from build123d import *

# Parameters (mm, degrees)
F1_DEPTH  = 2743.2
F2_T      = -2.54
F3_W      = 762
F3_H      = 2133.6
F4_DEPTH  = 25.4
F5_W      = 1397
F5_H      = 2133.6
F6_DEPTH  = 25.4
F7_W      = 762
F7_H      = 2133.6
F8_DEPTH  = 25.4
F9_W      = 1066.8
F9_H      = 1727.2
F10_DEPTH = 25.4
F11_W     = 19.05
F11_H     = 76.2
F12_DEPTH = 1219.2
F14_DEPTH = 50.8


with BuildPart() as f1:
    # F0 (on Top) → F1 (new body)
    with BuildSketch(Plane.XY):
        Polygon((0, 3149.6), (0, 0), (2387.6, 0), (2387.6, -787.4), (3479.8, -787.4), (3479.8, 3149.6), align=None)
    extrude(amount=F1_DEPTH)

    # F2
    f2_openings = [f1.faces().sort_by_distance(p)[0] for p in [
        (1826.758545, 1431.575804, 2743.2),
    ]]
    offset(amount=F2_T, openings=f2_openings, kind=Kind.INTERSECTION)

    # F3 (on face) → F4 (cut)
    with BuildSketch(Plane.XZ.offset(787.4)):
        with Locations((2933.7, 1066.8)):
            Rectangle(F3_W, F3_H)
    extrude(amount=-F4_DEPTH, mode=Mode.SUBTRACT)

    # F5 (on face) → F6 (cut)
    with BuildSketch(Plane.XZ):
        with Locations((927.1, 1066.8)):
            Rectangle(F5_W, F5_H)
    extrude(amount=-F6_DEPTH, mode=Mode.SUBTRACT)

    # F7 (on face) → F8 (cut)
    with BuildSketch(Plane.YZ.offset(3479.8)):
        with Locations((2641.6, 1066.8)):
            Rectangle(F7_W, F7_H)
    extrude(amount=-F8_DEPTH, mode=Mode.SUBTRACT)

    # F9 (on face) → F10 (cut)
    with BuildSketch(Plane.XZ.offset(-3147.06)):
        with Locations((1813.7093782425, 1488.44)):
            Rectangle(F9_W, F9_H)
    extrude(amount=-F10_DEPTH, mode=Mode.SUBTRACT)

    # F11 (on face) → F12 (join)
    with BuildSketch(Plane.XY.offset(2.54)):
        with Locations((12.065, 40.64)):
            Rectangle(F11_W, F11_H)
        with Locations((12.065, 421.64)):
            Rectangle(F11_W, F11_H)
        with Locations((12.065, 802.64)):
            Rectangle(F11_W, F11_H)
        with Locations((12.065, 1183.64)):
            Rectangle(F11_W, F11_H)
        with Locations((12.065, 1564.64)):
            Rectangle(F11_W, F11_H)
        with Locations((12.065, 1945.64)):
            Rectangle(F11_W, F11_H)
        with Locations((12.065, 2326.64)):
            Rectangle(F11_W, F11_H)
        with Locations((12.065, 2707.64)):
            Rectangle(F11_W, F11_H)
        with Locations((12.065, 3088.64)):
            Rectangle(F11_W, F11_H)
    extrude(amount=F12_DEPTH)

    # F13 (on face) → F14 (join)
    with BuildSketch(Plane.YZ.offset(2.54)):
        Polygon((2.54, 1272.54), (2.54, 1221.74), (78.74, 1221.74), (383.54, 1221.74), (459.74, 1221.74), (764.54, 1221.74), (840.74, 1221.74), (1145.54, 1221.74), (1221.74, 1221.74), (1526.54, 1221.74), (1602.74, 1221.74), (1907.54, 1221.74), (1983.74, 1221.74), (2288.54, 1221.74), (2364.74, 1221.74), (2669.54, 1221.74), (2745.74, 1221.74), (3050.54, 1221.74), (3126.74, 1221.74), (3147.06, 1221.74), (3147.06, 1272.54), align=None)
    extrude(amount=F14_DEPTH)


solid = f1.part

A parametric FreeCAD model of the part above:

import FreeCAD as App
import Part
import Sketcher

V = App.Vector
Q = App.Units.Quantity


def faces_at(feature, points):
    """Names of the faces that lie closest to the given points."""
    faces = feature.Shape.Faces
    near = lambda p: min(range(len(faces)), key=lambda i: faces[i].distToShape(Part.Vertex(*p))[0])
    return sorted({f"Face{near(p) + 1}" for p in points})

doc = App.newDocument("Part")
body = doc.addObject("PartDesign::Body", "Body")

# Sketch on XY plane
sketch1 = body.newObject("Sketcher::SketchObject", "Sketch")
sketch1.AttachmentSupport = (doc.getObject("XY_Plane"), [""])
sketch1.MapMode = "FlatFace"
sketch1.addGeometry([
    Part.LineSegment(V(0, 3149.6, 0), V(0, 0, 0)),  # 0
    Part.LineSegment(V(0, 0, 0), V(2387.6, 0, 0)),  # 1
    Part.LineSegment(V(2387.6, 0, 0), V(2387.6, -787.4, 0)),  # 2
    Part.LineSegment(V(2387.6, -787.4, 0), V(3479.8, -787.4, 0)),  # 3
    Part.LineSegment(V(3479.8, -787.4, 0), V(3479.8, 3149.6, 0)),  # 4
    Part.LineSegment(V(3479.8, 3149.6, 0), V(0, 3149.6, 0)),  # 5
], False)
sketch1.addConstraint([
    Sketcher.Constraint("Coincident", 0, 2, 1, 1),
    Sketcher.Constraint("Coincident", 1, 2, 2, 1),
    Sketcher.Constraint("Coincident", 2, 2, 3, 1),
    Sketcher.Constraint("Coincident", 3, 2, 4, 1),
    Sketcher.Constraint("Coincident", 4, 2, 5, 1),
    Sketcher.Constraint("Coincident", 5, 2, 0, 1),
    Sketcher.Constraint("Vertical", 0),
    Sketcher.Constraint("Horizontal", 1),
    Sketcher.Constraint("Vertical", 2),
    Sketcher.Constraint("Horizontal", 3),
    Sketcher.Constraint("Vertical", 4),
    Sketcher.Constraint("Horizontal", 5),
    Sketcher.Constraint("Coincident", 0, 2, -1, 1),
    Sketcher.Constraint("DistanceX", 1, 1, 1, 2, Q("94 in")),
    Sketcher.Constraint("DistanceX", 3, 1, 3, 2, Q("43 in")),
    Sketcher.Constraint("DistanceY", 0, 2, 0, 1, Q("124 in")),
    Sketcher.Constraint("DistanceY", 2, 2, 2, 1, Q("31 in")),
])
pad1 = body.newObject("PartDesign::Pad", "Pad")
pad1.Profile = sketch1
pad1.Length = Q("108 in")
doc.recompute()

thickness = body.newObject("PartDesign::Thickness", "Thickness")
thickness.Base = (pad1, faces_at(pad1, [(1739.9, 1181.1, 2743.2)]))
thickness.Value = Q("0.1 in")
thickness.Reversed = True
thickness.Join = "Intersection"

# Sketch on XZ plane
sketch2 = body.newObject("Sketcher::SketchObject", "Sketch001")
sketch2.AttachmentSupport = (doc.getObject("XZ_Plane"), [""])
sketch2.MapMode = "FlatFace"
sketch2.AttachmentOffset = App.Placement(V(0, 0, 31 * 25.4), App.Rotation())
sketch2.addGeometry([
    Part.LineSegment(V(2552.7, 2133.6, 0), V(2552.7, 0, 0)),
    Part.LineSegment(V(2552.7, 0, 0), V(3314.7, 0, 0)),
    Part.LineSegment(V(3314.7, 0, 0), V(3314.7, 2133.6, 0)),
    Part.LineSegment(V(3314.7, 2133.6, 0), V(2552.7, 2133.6, 0)),
], False)
sketch2.addConstraint([
    Sketcher.Constraint("Coincident", 0, 2, 1, 1),
    Sketcher.Constraint("Coincident", 1, 2, 2, 1),
    Sketcher.Constraint("Coincident", 2, 2, 3, 1),
    Sketcher.Constraint("Coincident", 3, 2, 0, 1),
    Sketcher.Constraint("Vertical", 0),
    Sketcher.Constraint("Horizontal", 1),
    Sketcher.Constraint("Vertical", 2),
    Sketcher.Constraint("Horizontal", 3),
    Sketcher.Constraint("PointOnObject", 0, 2, -1),
    Sketcher.Constraint("DistanceX", 1, 1, 1, 2, Q("30 in")),
    Sketcher.Constraint("DistanceY", 0, 2, 0, 1, Q("84 in")),
    Sketcher.Constraint("DistanceX", -1, 1, 0, 2, Q("100.5 in")),
])
pocket1 = body.newObject("PartDesign::Pocket", "Pocket")
pocket1.Profile = sketch2
pocket1.Length = Q("1 in")

# Sketch on XZ plane
sketch3 = body.newObject("Sketcher::SketchObject", "Sketch002")
sketch3.AttachmentSupport = (doc.getObject("XZ_Plane"), [""])
sketch3.MapMode = "FlatFace"
sketch3.addGeometry([
    Part.LineSegment(V(228.6, 2133.6, 0), V(228.6, 0, 0)),
    Part.LineSegment(V(228.6, 0, 0), V(1625.6, 0, 0)),
    Part.LineSegment(V(1625.6, 0, 0), V(1625.6, 2133.6, 0)),
    Part.LineSegment(V(1625.6, 2133.6, 0), V(228.6, 2133.6, 0)),
], False)
sketch3.addConstraint([
    Sketcher.Constraint("Coincident", 0, 2, 1, 1),
    Sketcher.Constraint("Coincident", 1, 2, 2, 1),
    Sketcher.Constraint("Coincident", 2, 2, 3, 1),
    Sketcher.Constraint("Coincident", 3, 2, 0, 1),
    Sketcher.Constraint("Vertical", 0),
    Sketcher.Constraint("Horizontal", 1),
    Sketcher.Constraint("Vertical", 2),
    Sketcher.Constraint("Horizontal", 3),
    Sketcher.Constraint("PointOnObject", 0, 2, -1),
    Sketcher.Constraint("DistanceX", 1, 1, 1, 2, Q("55 in")),
    Sketcher.Constraint("DistanceY", 0, 2, 0, 1, Q("84 in")),
    Sketcher.Constraint("DistanceX", -1, 1, 0, 2, Q("9 in")),
])
pocket2 = body.newObject("PartDesign::Pocket", "Pocket001")
pocket2.Profile = sketch3
pocket2.Length = Q("1 in")

# Sketch on YZ plane
sketch4 = body.newObject("Sketcher::SketchObject", "Sketch003")
sketch4.AttachmentSupport = (doc.getObject("YZ_Plane"), [""])
sketch4.MapMode = "FlatFace"
sketch4.AttachmentOffset = App.Placement(V(0, 0, 137 * 25.4), App.Rotation())
sketch4.addGeometry([
    Part.LineSegment(V(2260.6, 2133.6, 0), V(2260.6, 0, 0)),
    Part.LineSegment(V(2260.6, 0, 0), V(3022.6, 0, 0)),
    Part.LineSegment(V(3022.6, 0, 0), V(3022.6, 2133.6, 0)),
    Part.LineSegment(V(3022.6, 2133.6, 0), V(2260.6, 2133.6, 0)),
], False)
sketch4.addConstraint([
    Sketcher.Constraint("Coincident", 0, 2, 1, 1),
    Sketcher.Constraint("Coincident", 1, 2, 2, 1),
    Sketcher.Constraint("Coincident", 2, 2, 3, 1),
    Sketcher.Constraint("Coincident", 3, 2, 0, 1),
    Sketcher.Constraint("Vertical", 0),
    Sketcher.Constraint("Horizontal", 1),
    Sketcher.Constraint("Vertical", 2),
    Sketcher.Constraint("Horizontal", 3),
    Sketcher.Constraint("PointOnObject", 0, 2, -1),
    Sketcher.Constraint("DistanceX", 1, 1, 1, 2, Q("30 in")),
    Sketcher.Constraint("DistanceY", 0, 2, 0, 1, Q("84 in")),
    Sketcher.Constraint("DistanceX", -1, 1, 0, 2, Q("89 in")),
])
pocket3 = body.newObject("PartDesign::Pocket", "Pocket002")
pocket3.Profile = sketch4
pocket3.Length = Q("1 in")

# Sketch on XZ plane
sketch5 = body.newObject("Sketcher::SketchObject", "Sketch004")
sketch5.AttachmentSupport = (doc.getObject("XZ_Plane"), [""])
sketch5.MapMode = "FlatFace"
sketch5.AttachmentOffset = App.Placement(V(0, 0, -123.9 * 25.4), App.Rotation())
sketch5.addGeometry([
    Part.LineSegment(V(1280.309378, 2352.04, 0), V(1280.309378, 624.84, 0)),
    Part.LineSegment(V(1280.309378, 624.84, 0), V(2347.109378, 624.84, 0)),
    Part.LineSegment(V(2347.109378, 624.84, 0), V(2347.109378, 2352.04, 0)),
    Part.LineSegment(V(2347.109378, 2352.04, 0), V(1280.309378, 2352.04, 0)),
], False)
sketch5.addConstraint([
    Sketcher.Constraint("Coincident", 0, 2, 1, 1),
    Sketcher.Constraint("Coincident", 1, 2, 2, 1),
    Sketcher.Constraint("Coincident", 2, 2, 3, 1),
    Sketcher.Constraint("Coincident", 3, 2, 0, 1),
    Sketcher.Constraint("Vertical", 0),
    Sketcher.Constraint("Horizontal", 1),
    Sketcher.Constraint("Vertical", 2),
    Sketcher.Constraint("Horizontal", 3),
    Sketcher.Constraint("DistanceX", 1, 1, 1, 2, Q("42 in")),
    Sketcher.Constraint("DistanceY", 0, 2, 0, 1, Q("68 in")),
    Sketcher.Constraint("DistanceY", -1, 1, 0, 2, Q("24.6 in")),
    Sketcher.Constraint("DistanceX", -1, 1, 0, 2, Q("1280.309378 mm")),
])
pocket4 = body.newObject("PartDesign::Pocket", "Pocket003")
pocket4.Profile = sketch5
pocket4.Length = Q("1 in")

# Sketch on XY plane
sketch6 = body.newObject("Sketcher::SketchObject", "Sketch005")
sketch6.AttachmentSupport = (doc.getObject("XY_Plane"), [""])
sketch6.MapMode = "FlatFace"
sketch6.AttachmentOffset = App.Placement(V(0, 0, 0.1 * 25.4), App.Rotation())
sketch6.addGeometry([
    Part.LineSegment(V(2.54, 78.74, 0), V(2.54, 2.54, 0)),  # 0
    Part.LineSegment(V(2.54, 2.54, 0), V(21.59, 2.54, 0)),  # 1
    Part.LineSegment(V(21.59, 2.54, 0), V(21.59, 78.74, 0)),  # 2
    Part.LineSegment(V(21.59, 78.74, 0), V(2.54, 78.74, 0)),  # 3
    Part.LineSegment(V(2.54, 459.74, 0), V(2.54, 383.54, 0)),  # 4
    Part.LineSegment(V(2.54, 383.54, 0), V(21.59, 383.54, 0)),  # 5
    Part.LineSegment(V(21.59, 383.54, 0), V(21.59, 459.74, 0)),  # 6
    Part.LineSegment(V(21.59, 459.74, 0), V(2.54, 459.74, 0)),  # 7
    Part.LineSegment(V(2.54, 840.74, 0), V(2.54, 764.54, 0)),  # 8
    Part.LineSegment(V(2.54, 764.54, 0), V(21.59, 764.54, 0)),  # 9
    Part.LineSegment(V(21.59, 764.54, 0), V(21.59, 840.74, 0)),  # 10
    Part.LineSegment(V(21.59, 840.74, 0), V(2.54, 840.74, 0)),  # 11
    Part.LineSegment(V(2.54, 1221.74, 0), V(2.54, 1145.54, 0)),  # 12
    Part.LineSegment(V(2.54, 1145.54, 0), V(21.59, 1145.54, 0)),  # 13
    Part.LineSegment(V(21.59, 1145.54, 0), V(21.59, 1221.74, 0)),  # 14
    Part.LineSegment(V(21.59, 1221.74, 0), V(2.54, 1221.74, 0)),  # 15
    Part.LineSegment(V(2.54, 1602.74, 0), V(2.54, 1526.54, 0)),  # 16
    Part.LineSegment(V(2.54, 1526.54, 0), V(21.59, 1526.54, 0)),  # 17
    Part.LineSegment(V(21.59, 1526.54, 0), V(21.59, 1602.74, 0)),  # 18
    Part.LineSegment(V(21.59, 1602.74, 0), V(2.54, 1602.74, 0)),  # 19
    Part.LineSegment(V(2.54, 1983.74, 0), V(2.54, 1907.54, 0)),  # 20
    Part.LineSegment(V(2.54, 1907.54, 0), V(21.59, 1907.54, 0)),  # 21
    Part.LineSegment(V(21.59, 1907.54, 0), V(21.59, 1983.74, 0)),  # 22
    Part.LineSegment(V(21.59, 1983.74, 0), V(2.54, 1983.74, 0)),  # 23
    Part.LineSegment(V(2.54, 2364.74, 0), V(2.54, 2288.54, 0)),  # 24
    Part.LineSegment(V(2.54, 2288.54, 0), V(21.59, 2288.54, 0)),  # 25
    Part.LineSegment(V(21.59, 2288.54, 0), V(21.59, 2364.74, 0)),  # 26
    Part.LineSegment(V(21.59, 2364.74, 0), V(2.54, 2364.74, 0)),  # 27
    Part.LineSegment(V(2.54, 2745.74, 0), V(2.54, 2669.54, 0)),  # 28
    Part.LineSegment(V(2.54, 2669.54, 0), V(21.59, 2669.54, 0)),  # 29
    Part.LineSegment(V(21.59, 2669.54, 0), V(21.59, 2745.74, 0)),  # 30
    Part.LineSegment(V(21.59, 2745.74, 0), V(2.54, 2745.74, 0)),  # 31
    Part.LineSegment(V(2.54, 3126.74, 0), V(2.54, 3050.54, 0)),  # 32
    Part.LineSegment(V(2.54, 3050.54, 0), V(21.59, 3050.54, 0)),  # 33
    Part.LineSegment(V(21.59, 3050.54, 0), V(21.59, 3126.74, 0)),  # 34
    Part.LineSegment(V(21.59, 3126.74, 0), V(2.54, 3126.74, 0)),  # 35
], False)
sketch6.addConstraint([
    Sketcher.Constraint("Coincident", 0, 2, 1, 1),
    Sketcher.Constraint("Coincident", 1, 2, 2, 1),
    Sketcher.Constraint("Coincident", 2, 2, 3, 1),
    Sketcher.Constraint("Coincident", 3, 2, 0, 1),
    Sketcher.Constraint("Coincident", 4, 2, 5, 1),
    Sketcher.Constraint("Coincident", 5, 2, 6, 1),
    Sketcher.Constraint("Coincident", 6, 2, 7, 1),
    Sketcher.Constraint("Coincident", 7, 2, 4, 1),
    Sketcher.Constraint("Coincident", 8, 2, 9, 1),
    Sketcher.Constraint("Coincident", 9, 2, 10, 1),
    Sketcher.Constraint("Coincident", 10, 2, 11, 1),
    Sketcher.Constraint("Coincident", 11, 2, 8, 1),
    Sketcher.Constraint("Coincident", 12, 2, 13, 1),
    Sketcher.Constraint("Coincident", 13, 2, 14, 1),
    Sketcher.Constraint("Coincident", 14, 2, 15, 1),
    Sketcher.Constraint("Coincident", 15, 2, 12, 1),
    Sketcher.Constraint("Coincident", 16, 2, 17, 1),
    Sketcher.Constraint("Coincident", 17, 2, 18, 1),
    Sketcher.Constraint("Coincident", 18, 2, 19, 1),
    Sketcher.Constraint("Coincident", 19, 2, 16, 1),
    Sketcher.Constraint("Coincident", 20, 2, 21, 1),
    Sketcher.Constraint("Coincident", 21, 2, 22, 1),
    Sketcher.Constraint("Coincident", 22, 2, 23, 1),
    Sketcher.Constraint("Coincident", 23, 2, 20, 1),
    Sketcher.Constraint("Coincident", 24, 2, 25, 1),
    Sketcher.Constraint("Coincident", 25, 2, 26, 1),
    Sketcher.Constraint("Coincident", 26, 2, 27, 1),
    Sketcher.Constraint("Coincident", 27, 2, 24, 1),
    Sketcher.Constraint("Coincident", 28, 2, 29, 1),
    Sketcher.Constraint("Coincident", 29, 2, 30, 1),
    Sketcher.Constraint("Coincident", 30, 2, 31, 1),
    Sketcher.Constraint("Coincident", 31, 2, 28, 1),
    Sketcher.Constraint("Coincident", 32, 2, 33, 1),
    Sketcher.Constraint("Coincident", 33, 2, 34, 1),
    Sketcher.Constraint("Coincident", 34, 2, 35, 1),
    Sketcher.Constraint("Coincident", 35, 2, 32, 1),
    Sketcher.Constraint("Vertical", 0),
    Sketcher.Constraint("Horizontal", 1),
    Sketcher.Constraint("Vertical", 2),
    Sketcher.Constraint("Horizontal", 3),
    Sketcher.Constraint("Vertical", 4),
    Sketcher.Constraint("Horizontal", 5),
    Sketcher.Constraint("Vertical", 6),
    Sketcher.Constraint("Horizontal", 7),
    Sketcher.Constraint("Vertical", 8),
    Sketcher.Constraint("Horizontal", 9),
    Sketcher.Constraint("Vertical", 10),
    Sketcher.Constraint("Horizontal", 11),
    Sketcher.Constraint("Vertical", 12),
    Sketcher.Constraint("Horizontal", 13),
    Sketcher.Constraint("Vertical", 14),
    Sketcher.Constraint("Horizontal", 15),
    Sketcher.Constraint("Vertical", 16),
    Sketcher.Constraint("Horizontal", 17),
    Sketcher.Constraint("Vertical", 18),
    Sketcher.Constraint("Horizontal", 19),
    Sketcher.Constraint("Vertical", 20),
    Sketcher.Constraint("Horizontal", 21),
    Sketcher.Constraint("Vertical", 22),
    Sketcher.Constraint("Horizontal", 23),
    Sketcher.Constraint("Vertical", 24),
    Sketcher.Constraint("Horizontal", 25),
    Sketcher.Constraint("Vertical", 26),
    Sketcher.Constraint("Horizontal", 27),
    Sketcher.Constraint("Vertical", 28),
    Sketcher.Constraint("Horizontal", 29),
    Sketcher.Constraint("Vertical", 30),
    Sketcher.Constraint("Horizontal", 31),
    Sketcher.Constraint("Vertical", 32),
    Sketcher.Constraint("Horizontal", 33),
    Sketcher.Constraint("Vertical", 34),
    Sketcher.Constraint("Horizontal", 35),
    Sketcher.Constraint("Vertical", 3, 2, 4, 2),
    Sketcher.Constraint("Vertical", 2, 2, 5, 2),
    Sketcher.Constraint("Vertical", 7, 2, 8, 2),
    Sketcher.Constraint("Vertical", 6, 2, 9, 2),
    Sketcher.Constraint("Vertical", 11, 2, 12, 2),
    Sketcher.Constraint("Vertical", 10, 2, 13, 2),
    Sketcher.Constraint("Vertical", 15, 2, 16, 2),
    Sketcher.Constraint("Vertical", 14, 2, 17, 2),
    Sketcher.Constraint("Vertical", 19, 2, 20, 2),
    Sketcher.Constraint("Vertical", 18, 2, 21, 2),
    Sketcher.Constraint("Vertical", 23, 2, 24, 2),
    Sketcher.Constraint("Vertical", 22, 2, 25, 2),
    Sketcher.Constraint("Vertical", 27, 2, 28, 2),
    Sketcher.Constraint("Vertical", 26, 2, 29, 2),
    Sketcher.Constraint("Vertical", 31, 2, 32, 2),
    Sketcher.Constraint("Vertical", 30, 2, 33, 2),
    Sketcher.Constraint("Equal", 2, 4),
    Sketcher.Constraint("Equal", 6, 8),
    Sketcher.Constraint("Equal", 10, 12),
    Sketcher.Constraint("Equal", 14, 16),
    Sketcher.Constraint("Equal", 18, 20),
    Sketcher.Constraint("Equal", 22, 24),
    Sketcher.Constraint("Equal", 26, 28),
    Sketcher.Constraint("Equal", 30, 32),
    Sketcher.Constraint("DistanceY", 0, 2, 0, 1, Q("3 in")),
    Sketcher.Constraint("DistanceY", 3, 2, 4, 2, Q("12 in")),
    Sketcher.Constraint("DistanceY", 7, 2, 8, 2, Q("12 in")),
    Sketcher.Constraint("DistanceY", 11, 2, 12, 2, Q("12 in")),
    Sketcher.Constraint("DistanceY", 15, 2, 16, 2, Q("12 in")),
    Sketcher.Constraint("DistanceY", 19, 2, 20, 2, Q("12 in")),
    Sketcher.Constraint("DistanceY", 23, 2, 24, 2, Q("12 in")),
    Sketcher.Constraint("DistanceY", 27, 2, 28, 2, Q("12 in")),
    Sketcher.Constraint("DistanceY", 31, 2, 32, 2, Q("12 in")),
    Sketcher.Constraint("DistanceX", 1, 1, 1, 2, Q("0.75 in")),
    Sketcher.Constraint("DistanceX", -1, 1, 0, 2, Q("0.1 in")),
    Sketcher.Constraint("DistanceY", -1, 1, 0, 2, Q("0.1 in")),
])
pad2 = body.newObject("PartDesign::Pad", "Pad001")
pad2.Profile = sketch6
pad2.Length = Q("48 in")

# Sketch on YZ plane
sketch7 = body.newObject("Sketcher::SketchObject", "Sketch006")
sketch7.AttachmentSupport = (doc.getObject("YZ_Plane"), [""])
sketch7.MapMode = "FlatFace"
sketch7.AttachmentOffset = App.Placement(V(0, 0, 0.1 * 25.4), App.Rotation())
sketch7.addGeometry([
    Part.LineSegment(V(2.54, 1272.54, 0), V(2.54, 1221.74, 0)),
    Part.LineSegment(V(2.54, 1221.74, 0), V(3147.06, 1221.74, 0)),
    Part.LineSegment(V(3147.06, 1221.74, 0), V(3147.06, 1272.54, 0)),
    Part.LineSegment(V(3147.06, 1272.54, 0), V(2.54, 1272.54, 0)),
], False)
sketch7.addConstraint([
    Sketcher.Constraint("Coincident", 0, 2, 1, 1),
    Sketcher.Constraint("Coincident", 1, 2, 2, 1),
    Sketcher.Constraint("Coincident", 2, 2, 3, 1),
    Sketcher.Constraint("Coincident", 3, 2, 0, 1),
    Sketcher.Constraint("Vertical", 0),
    Sketcher.Constraint("Horizontal", 1),
    Sketcher.Constraint("Vertical", 2),
    Sketcher.Constraint("Horizontal", 3),
    Sketcher.Constraint("DistanceY", 0, 2, 0, 1, Q("2 in")),
    Sketcher.Constraint("DistanceX", 1, 1, 1, 2, Q("123.8 in")),
    Sketcher.Constraint("DistanceX", -1, 1, 0, 2, Q("0.1 in")),
    Sketcher.Constraint("DistanceY", -1, 1, 0, 2, Q("48.1 in")),
])
pad3 = body.newObject("PartDesign::Pad", "Pad002")
pad3.Profile = sketch7
pad3.Length = Q("2 in")

doc.recompute()
